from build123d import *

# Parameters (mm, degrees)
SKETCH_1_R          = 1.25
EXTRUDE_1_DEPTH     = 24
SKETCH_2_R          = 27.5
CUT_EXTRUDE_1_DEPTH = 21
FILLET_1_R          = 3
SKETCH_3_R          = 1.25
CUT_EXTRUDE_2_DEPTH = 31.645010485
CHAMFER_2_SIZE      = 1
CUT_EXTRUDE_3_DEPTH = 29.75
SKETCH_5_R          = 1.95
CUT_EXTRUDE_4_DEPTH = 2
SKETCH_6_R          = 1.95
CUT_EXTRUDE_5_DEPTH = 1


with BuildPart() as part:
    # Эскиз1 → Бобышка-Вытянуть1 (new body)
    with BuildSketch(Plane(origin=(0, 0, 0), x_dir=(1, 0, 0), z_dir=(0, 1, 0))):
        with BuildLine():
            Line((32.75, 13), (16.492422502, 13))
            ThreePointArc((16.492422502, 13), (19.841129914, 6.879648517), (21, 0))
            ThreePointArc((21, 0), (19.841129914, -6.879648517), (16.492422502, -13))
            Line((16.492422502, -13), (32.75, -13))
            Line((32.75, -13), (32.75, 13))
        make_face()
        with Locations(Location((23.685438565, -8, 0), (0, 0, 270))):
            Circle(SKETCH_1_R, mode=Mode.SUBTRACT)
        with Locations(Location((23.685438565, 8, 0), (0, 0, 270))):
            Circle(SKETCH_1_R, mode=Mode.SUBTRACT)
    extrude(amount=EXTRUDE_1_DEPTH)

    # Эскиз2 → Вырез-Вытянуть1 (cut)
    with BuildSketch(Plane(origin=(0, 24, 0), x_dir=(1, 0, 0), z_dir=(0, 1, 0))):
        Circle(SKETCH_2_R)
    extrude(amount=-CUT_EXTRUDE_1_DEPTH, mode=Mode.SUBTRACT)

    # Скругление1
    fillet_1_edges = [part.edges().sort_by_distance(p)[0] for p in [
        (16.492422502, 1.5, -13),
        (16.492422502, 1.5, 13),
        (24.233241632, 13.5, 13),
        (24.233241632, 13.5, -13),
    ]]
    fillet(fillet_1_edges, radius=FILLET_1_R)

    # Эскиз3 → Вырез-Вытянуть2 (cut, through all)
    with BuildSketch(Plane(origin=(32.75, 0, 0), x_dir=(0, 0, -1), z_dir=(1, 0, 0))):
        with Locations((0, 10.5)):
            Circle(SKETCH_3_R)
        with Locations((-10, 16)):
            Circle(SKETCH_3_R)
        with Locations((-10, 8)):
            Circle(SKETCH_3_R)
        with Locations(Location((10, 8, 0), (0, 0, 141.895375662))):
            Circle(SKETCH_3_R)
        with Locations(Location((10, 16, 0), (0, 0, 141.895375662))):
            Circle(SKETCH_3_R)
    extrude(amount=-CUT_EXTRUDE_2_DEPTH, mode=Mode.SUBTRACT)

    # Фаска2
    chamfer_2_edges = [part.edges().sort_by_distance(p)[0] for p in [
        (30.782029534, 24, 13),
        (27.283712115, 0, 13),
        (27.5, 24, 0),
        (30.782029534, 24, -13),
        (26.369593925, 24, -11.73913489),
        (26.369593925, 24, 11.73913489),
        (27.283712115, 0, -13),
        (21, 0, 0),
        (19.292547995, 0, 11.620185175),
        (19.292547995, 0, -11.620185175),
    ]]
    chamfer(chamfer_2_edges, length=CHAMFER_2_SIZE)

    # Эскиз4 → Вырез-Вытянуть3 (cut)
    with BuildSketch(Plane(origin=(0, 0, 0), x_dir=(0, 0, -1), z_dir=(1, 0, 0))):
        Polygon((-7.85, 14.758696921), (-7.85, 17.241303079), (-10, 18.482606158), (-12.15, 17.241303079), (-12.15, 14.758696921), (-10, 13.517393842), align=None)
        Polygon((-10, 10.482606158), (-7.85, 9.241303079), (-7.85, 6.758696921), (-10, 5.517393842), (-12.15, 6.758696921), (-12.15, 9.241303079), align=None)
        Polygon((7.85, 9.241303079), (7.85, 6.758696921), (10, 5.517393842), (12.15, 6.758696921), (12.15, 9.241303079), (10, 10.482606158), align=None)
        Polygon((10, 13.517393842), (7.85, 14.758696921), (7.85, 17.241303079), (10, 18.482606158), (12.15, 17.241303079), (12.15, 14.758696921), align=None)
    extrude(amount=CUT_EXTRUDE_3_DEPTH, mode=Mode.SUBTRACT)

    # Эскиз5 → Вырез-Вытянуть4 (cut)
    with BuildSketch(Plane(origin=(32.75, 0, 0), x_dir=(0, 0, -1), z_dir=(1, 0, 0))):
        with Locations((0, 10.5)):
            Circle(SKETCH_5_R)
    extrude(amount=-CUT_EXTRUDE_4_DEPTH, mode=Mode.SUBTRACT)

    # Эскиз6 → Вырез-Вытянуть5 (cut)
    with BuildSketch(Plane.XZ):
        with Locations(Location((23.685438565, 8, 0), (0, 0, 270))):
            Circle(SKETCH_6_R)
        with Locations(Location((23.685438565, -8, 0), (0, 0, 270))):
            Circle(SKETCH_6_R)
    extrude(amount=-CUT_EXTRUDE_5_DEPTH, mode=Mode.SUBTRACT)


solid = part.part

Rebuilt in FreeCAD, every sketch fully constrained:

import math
import FreeCAD as App
import Part
import Sketcher
from FreeCAD import Vector
Q = App.Units.Quantity


def edges_at(feature, points):
    """Names of the edges that pass closest to the given points."""
    edges = feature.Shape.Edges
    near = lambda p: min(range(len(edges)), key=lambda i: edges[i].distToShape(Part.Vertex(*p))[0])
    return sorted({f"Edge{near(p) + 1}" for p in points})


def add_polygon(sketch, points):
    """Adds a closed chain of lines whose ends are joined by coincident constraints."""
    first, n = sketch.GeometryCount, len(points)
    for a, b in zip(points, points[1:] + points[:1]):
        sketch.addGeometry(Part.LineSegment(App.Vector(*a, 0), App.Vector(*b, 0)), False)
    for i in range(n):
        sketch.addConstraint(Sketcher.Constraint("Coincident", first + i, 2, first + (i + 1) % n, 1))

doc = App.newDocument("Part")
body = doc.addObject("PartDesign::Body", "Body")

# Sketch on XZ plane
sketch1 = body.newObject("Sketcher::SketchObject", "Sketch")
sketch1.AttachmentSupport = (doc.getObject("XZ_Plane"), [""])
sketch1.MapMode = "FlatFace"
sketch1.addGeometry([
    Part.LineSegment(Vector(32.8, -13, 0), Vector(16.5, -13, 0)),  # 0
    Part.ArcOfCircle(Part.Circle(Vector(0, 0, 0), Vector(0, 0, 1), 21), math.radians(-38), math.radians(0)),  # 1
    Part.ArcOfCircle(Part.Circle(Vector(0, 0, 0), Vector(0, 0, 1), 21), math.radians(0), math.radians(38)),  # 2
    Part.LineSegment(Vector(16.5, 13, 0), Vector(32.8, 13, 0)),  # 3
    Part.LineSegment(Vector(32.8, 13, 0), Vector(32.8, -13, 0)),  # 4
    Part.Circle(Vector(23.7, 8, 0), Vector(0, 0, 1), 1.2),  # 5
    Part.Circle(Vector(23.7, -8, 0), Vector(0, 0, 1), 1.2),  # 6
], False)
sketch1.addConstraint([
    Sketcher.Constraint("Coincident", 0, 2, 1, 1),
    Sketcher.Constraint("Tangent", 1, 2, 2, 1),
    Sketcher.Constraint("Coincident", 2, 2, 3, 1),
    Sketcher.Constraint("Coincident", 3, 2, 4, 1),
    Sketcher.Constraint("Coincident", 4, 2, 0, 1),
    Sketcher.Constraint("Horizontal", 0),
    Sketcher.Constraint("Horizontal", 3),
    Sketcher.Constraint("Vertical", 4),
    Sketcher.Constraint("Coincident", 1, 3, -1, 1),
    Sketcher.Constraint("Equal", 1, 2),
    Sketcher.Constraint("Equal", 5, 6),
    Sketcher.Constraint("Symmetric", 5, 3, 6, 3, -1),
    Sketcher.Constraint("PointOnObject", 1, 2, -1),
    Sketcher.Constraint("Vertical", 0, 2, 2, 2),
    Sketcher.Constraint("Radius", 1, Q("21 mm")),
    Sketcher.Constraint("Diameter", 5, Q("2.5 mm")),
    Sketcher.Constraint("DistanceY", 4, 2, 4, 1, Q("26 mm")),
    Sketcher.Constraint("DistanceY", -1, 1, 5, 3, Q("8 mm")),
    Sketcher.Constraint("DistanceX", -1, 1, 3, 2, Q("32.75 mm")),
    Sketcher.Constraint("DistanceX", -1, 1, 5, 3, Q("23.685439 mm")),
])
pad1 = body.newObject("PartDesign::Pad", "Pad")
pad1.Profile = sketch1
pad1.Length = 24
pad1.Reversed = True

# Sketch on XZ plane
sketch2 = body.newObject("Sketcher::SketchObject", "Sketch001")
sketch2.AttachmentSupport = (doc.getObject("XZ_Plane"), [""])
sketch2.MapMode = "FlatFace"
sketch2.AttachmentOffset = App.Placement(Vector(0, 0, -24), App.Rotation())
sketch2.addGeometry(Part.Circle(Vector(0, 0, 0), Vector(0, 0, 1), 28), False)
sketch2.addConstraint([
    Sketcher.Constraint("Coincident", 0, 3, -1, 1),
    Sketcher.Constraint("Diameter", 0, Q("55 mm")),
])
pocket1 = body.newObject("PartDesign::Pocket", "Pocket")
pocket1.Profile = sketch2
pocket1.Length = 21
pocket1.Reversed = True
doc.recompute()

fillet = body.newObject("PartDesign::Fillet", "Fillet")
fillet.Base = (pocket1, edges_at(pocket1, [
    (16.492, 1.5, -13),
    (16.492, 1.5, 13),
    (24.233, 13.5, 13),
    (24.233, 13.5, -13),
]))
fillet.Radius = 3

# Sketch on YZ plane
sketch3 = body.newObject("Sketcher::SketchObject", "Sketch002")
sketch3.AttachmentSupport = (doc.getObject("YZ_Plane"), [""])
sketch3.MapMode = "FlatFace"
sketch3.AttachmentOffset = App.Placement(Vector(0, 0, 32.75), App.Rotation())
sketch3.addGeometry([
    Part.Circle(Vector(10.5, 0, 0), Vector(0, 0, 1), 1.2),  # 0
    Part.Circle(Vector(16, 10, 0), Vector(0, 0, 1), 1.2),  # 1
    Part.Circle(Vector(8, 10, 0), Vector(0, 0, 1), 1.2),  # 2
    Part.Circle(Vector(8, -10, 0), Vector(0, 0, 1), 1.2),  # 3
    Part.Circle(Vector(16, -10, 0), Vector(0, 0, 1), 1.2),  # 4
], False)
sketch3.addConstraint([
    Sketcher.Constraint("Equal", 0, 1),
    Sketcher.Constraint("Equal", 1, 2),
    Sketcher.Constraint("Equal", 2, 3),
    Sketcher.Constraint("Equal", 3, 4),
    Sketcher.Constraint("Symmetric", 2, 3, 3, 3, -1),
    Sketcher.Constraint("Symmetric", 1, 3, 4, 3, -1),
    Sketcher.Constraint("PointOnObject", 0, 3, -1),
    Sketcher.Constraint("Horizontal", 1, 3, 2, 3),
    Sketcher.Constraint("Diameter", 0, Q("2.5 mm")),
    Sketcher.Constraint("DistanceX", -1, 1, 1, 3, Q("16 mm")),
    Sketcher.Constraint("DistanceY", -1, 1, 1, 3, Q("10 mm")),
    Sketcher.Constraint("DistanceX", -1, 1, 2, 3, Q("8 mm")),
    Sketcher.Constraint("DistanceX", -1, 1, 0, 3, Q("10.5 mm")),
])
pocket2 = body.newObject("PartDesign::Pocket", "Pocket001")
pocket2.Profile = sketch3
pocket2.Type = "ThroughAll"
doc.recompute()

chamfer = body.newObject("PartDesign::Chamfer", "Chamfer")
chamfer.Base = (pocket2, edges_at(pocket2, [
    (30.782, 24, 13),
    (27.284, 0, 13),
    (27.5, 24, 0),
    (30.782, 24, -13),
    (26.37, 24, -11.739),
    (26.37, 24, 11.739),
    (27.284, 0, -13),
    (20.517, 0, -4.478),
    (19.293, 0, 11.62),
    (19.293, 0, -11.62),
]))
chamfer.Size = 1

# Sketch on YZ plane
sketch4 = body.newObject("Sketcher::SketchObject", "Sketch003")
sketch4.AttachmentSupport = (doc.getObject("YZ_Plane"), [""])
sketch4.MapMode = "FlatFace"
add_polygon(sketch4, [(14.8, 7.8), (17.2, 7.8), (18.5, 10), (17.2, 12.2), (14.8, 12.2), (13.5, 10)])  # lines 0-5
add_polygon(sketch4, [(9.2, 7.8), (10.5, 10), (9.2, 12.2), (6.8, 12.2), (5.5, 10), (6.8, 7.8)])  # lines 6-11
add_polygon(sketch4, [(9.2, -7.8), (6.8, -7.8), (5.5, -10), (6.8, -12.2), (9.2, -12.2), (10.5, -10)])  # lines 12-17
add_polygon(sketch4, [(14.8, -7.8), (13.5, -10), (14.8, -12.2), (17.2, -12.2), (18.5, -10), (17.2, -7.8)])  # lines 18-23
sketch4.addConstraint([
    Sketcher.Constraint("Horizontal", 0),
    Sketcher.Constraint("Horizontal", 3),
    Sketcher.Constraint("Horizontal", 8),
    Sketcher.Constraint("Horizontal", 11),
    Sketcher.Constraint("Horizontal", 12),
    Sketcher.Constraint("Horizontal", 15),
    Sketcher.Constraint("Horizontal", 20),
    Sketcher.Constraint("Horizontal", 23),
    Sketcher.Constraint("Symmetric", 10, 2, 12, 2, -1),
    Sketcher.Constraint("Symmetric", 9, 2, 13, 2, -1),
    Sketcher.Constraint("Symmetric", 8, 2, 14, 2, -1),
    Sketcher.Constraint("Symmetric", 6, 2, 16, 2, -1),
    Sketcher.Constraint("Symmetric", 4, 2, 18, 2, -1),
    Sketcher.Constraint("Symmetric", 3, 2, 19, 2, -1),
    Sketcher.Constraint("Symmetric", 1, 2, 21, 2, -1),
    Sketcher.Constraint("Symmetric", 0, 2, 22, 2, -1),
    Sketcher.Constraint("Parallel", 1, 4),
    Sketcher.Constraint("Parallel", 2, 5),
    Sketcher.Constraint("Parallel", 4, 6),
    Sketcher.Constraint("Parallel", 5, 7),
    Sketcher.Constraint("Parallel", 6, 9),
    Sketcher.Constraint("Parallel", 7, 10),
    Sketcher.Constraint("Parallel", 9, 13),
    Sketcher.Constraint("Parallel", 13, 16),
    Sketcher.Constraint("Parallel", 14, 17),
    Sketcher.Constraint("Parallel", 16, 18),
    Sketcher.Constraint("Parallel", 18, 21),
    Sketcher.Constraint("Horizontal", 1, 2, 4, 2),
    Sketcher.Constraint("Horizontal", 4, 2, 6, 2),
    Sketcher.Constraint("Horizontal", 3, 2, 7, 2),
    Sketcher.Constraint("Horizontal", 6, 2, 9, 2),
    Sketcher.Constraint("Horizontal", 5, 2, 10, 2),
    Sketcher.Constraint("Vertical", 0, 2, 2, 2),
    Sketcher.Constraint("Equal", 3, 8),
    Sketcher.Constraint("Angle", 1, Q("60 deg")),
    Sketcher.Constraint("DistanceY", -1, 1, 1, 2, Q("10 mm")),
    Sketcher.Constraint("DistanceX", 7, 2, 2, 2, Q("8 mm")),
    Sketcher.Constraint("DistanceY", 0, 2, 2, 2, Q("4.3 mm")),
    Sketcher.Constraint("DistanceX", 0, 1, 0, 2, Q("2.482606 mm")),
    Sketcher.Constraint("DistanceX", -1, 1, 0, 2, Q("17.241303 mm")),
])
pocket3 = body.newObject("PartDesign::Pocket", "Pocket002")
pocket3.Profile = sketch4
pocket3.Length = 29.75
pocket3.Reversed = True

# Sketch on YZ plane
sketch5 = body.newObject("Sketcher::SketchObject", "Sketch004")
sketch5.AttachmentSupport = (doc.getObject("YZ_Plane"), [""])
sketch5.MapMode = "FlatFace"
sketch5.AttachmentOffset = App.Placement(Vector(0, 0, 32.75), App.Rotation())
sketch5.addGeometry(Part.Circle(Vector(10.5, 0, 0), Vector(0, 0, 1), 1.9), False)
sketch5.addConstraint([
    Sketcher.Constraint("PointOnObject", 0, 3, -1),
    Sketcher.Constraint("Diameter", 0, Q("3.9 mm")),
    Sketcher.Constraint("DistanceX", -1, 1, 0, 3, Q("10.5 mm")),
])
pocket4 = body.newObject("PartDesign::Pocket", "Pocket003")
pocket4.Profile = sketch5
pocket4.Length = 2

# Sketch on XZ plane
sketch6 = body.newObject("Sketcher::SketchObject", "Sketch005")
sketch6.AttachmentSupport = (doc.getObject("XZ_Plane"), [""])
sketch6.MapMode = "FlatFace"
sketch6.addGeometry([
    Part.Circle(Vector(23.7, 8, 0), Vector(0, 0, 1), 1.9),
    Part.Circle(Vector(23.7, -8, 0), Vector(0, 0, 1), 1.9),
], False)
sketch6.addConstraint([
    Sketcher.Constraint("Equal", 0, 1),
    Sketcher.Constraint("Symmetric", 0, 3, 1, 3, -1),
    Sketcher.Constraint("Diameter", 0, Q("3.9 mm")),
    Sketcher.Constraint("DistanceY", -1, 1, 0, 3, Q("8 mm")),
    Sketcher.Constraint("DistanceX", -1, 1, 0, 3, Q("23.685439 mm")),
])
pocket5 = body.newObject("PartDesign::Pocket", "Pocket004")
pocket5.Profile = sketch6
pocket5.Length = 1

doc.recompute()
